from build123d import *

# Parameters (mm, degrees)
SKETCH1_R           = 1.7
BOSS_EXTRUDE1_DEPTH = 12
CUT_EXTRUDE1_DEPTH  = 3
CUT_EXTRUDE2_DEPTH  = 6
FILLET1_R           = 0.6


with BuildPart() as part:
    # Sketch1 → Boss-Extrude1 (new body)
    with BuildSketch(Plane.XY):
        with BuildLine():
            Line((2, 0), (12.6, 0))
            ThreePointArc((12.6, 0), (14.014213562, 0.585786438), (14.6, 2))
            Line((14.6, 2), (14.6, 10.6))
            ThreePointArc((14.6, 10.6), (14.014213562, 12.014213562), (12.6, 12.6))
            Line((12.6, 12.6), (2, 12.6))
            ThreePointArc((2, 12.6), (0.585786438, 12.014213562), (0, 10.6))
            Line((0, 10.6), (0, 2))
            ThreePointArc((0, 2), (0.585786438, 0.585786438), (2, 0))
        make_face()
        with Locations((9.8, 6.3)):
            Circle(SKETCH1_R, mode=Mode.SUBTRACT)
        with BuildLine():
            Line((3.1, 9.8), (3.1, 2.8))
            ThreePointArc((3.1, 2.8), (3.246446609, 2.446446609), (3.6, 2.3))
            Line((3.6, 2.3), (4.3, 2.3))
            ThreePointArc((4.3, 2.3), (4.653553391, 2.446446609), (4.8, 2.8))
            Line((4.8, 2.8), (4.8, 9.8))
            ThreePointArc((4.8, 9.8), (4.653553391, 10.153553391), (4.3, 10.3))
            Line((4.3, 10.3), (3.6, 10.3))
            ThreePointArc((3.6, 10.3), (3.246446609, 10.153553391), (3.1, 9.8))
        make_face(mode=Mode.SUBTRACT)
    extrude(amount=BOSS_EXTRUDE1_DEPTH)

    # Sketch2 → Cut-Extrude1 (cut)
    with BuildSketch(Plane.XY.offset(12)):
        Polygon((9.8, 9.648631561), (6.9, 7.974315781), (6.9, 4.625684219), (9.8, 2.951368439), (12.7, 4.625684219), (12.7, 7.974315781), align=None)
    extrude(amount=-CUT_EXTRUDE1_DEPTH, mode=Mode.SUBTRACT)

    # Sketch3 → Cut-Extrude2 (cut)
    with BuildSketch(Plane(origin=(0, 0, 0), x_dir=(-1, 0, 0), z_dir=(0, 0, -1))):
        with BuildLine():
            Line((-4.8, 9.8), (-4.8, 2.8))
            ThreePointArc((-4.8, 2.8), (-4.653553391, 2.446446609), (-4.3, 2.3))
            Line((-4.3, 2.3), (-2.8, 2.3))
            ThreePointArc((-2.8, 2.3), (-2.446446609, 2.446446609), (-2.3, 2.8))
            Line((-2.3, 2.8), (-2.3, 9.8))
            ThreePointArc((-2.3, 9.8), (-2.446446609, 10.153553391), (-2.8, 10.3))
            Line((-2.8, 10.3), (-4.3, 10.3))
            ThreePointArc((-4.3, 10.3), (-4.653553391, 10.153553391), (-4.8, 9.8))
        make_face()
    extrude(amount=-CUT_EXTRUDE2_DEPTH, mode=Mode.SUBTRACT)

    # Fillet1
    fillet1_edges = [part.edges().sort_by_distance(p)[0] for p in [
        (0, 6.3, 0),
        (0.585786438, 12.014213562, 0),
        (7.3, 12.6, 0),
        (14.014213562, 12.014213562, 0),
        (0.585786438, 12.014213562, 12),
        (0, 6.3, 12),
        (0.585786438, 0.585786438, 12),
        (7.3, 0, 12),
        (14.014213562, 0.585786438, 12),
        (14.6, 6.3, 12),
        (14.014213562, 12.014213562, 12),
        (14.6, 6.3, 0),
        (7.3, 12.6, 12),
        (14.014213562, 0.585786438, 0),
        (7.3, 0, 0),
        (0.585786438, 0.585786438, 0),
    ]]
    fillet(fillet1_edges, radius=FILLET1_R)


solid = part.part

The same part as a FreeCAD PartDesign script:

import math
import FreeCAD as App
import Part
import Sketcher
from FreeCAD import Vector
Q = App.Units.Quantity


def edges_at(feature, points):
    """Names of the edges that pass closest to the given points."""
    edges = feature.Shape.Edges
    near = lambda p: min(range(len(edges)), key=lambda i: edges[i].distToShape(Part.Vertex(*p))[0])
    return sorted({f"Edge{near(p) + 1}" for p in points})

doc = App.newDocument("Part")
body = doc.addObject("PartDesign::Body", "Body")

sketch1 = doc.addObject("Sketcher::SketchObject", "Sketch")
body.addObject(sketch1)
sketch1.AttachmentSupport = (doc.XY_Plane, [""])
sketch1.MapMode = "FlatFace"
sketch1.addGeometry(Part.LineSegment(Vector(2, 0, 0), Vector(12.6, 0, 0)), False)
sketch1.addGeometry(Part.ArcOfCircle(Part.Circle(Vector(12.6, 2, 0), Vector(0, 0, 1), 2), math.radians(-90), math.radians(0)), False)
sketch1.addGeometry(Part.LineSegment(Vector(14.6, 2, 0), Vector(14.6, 10.6, 0)), False)
sketch1.addGeometry(Part.ArcOfCircle(Part.Circle(Vector(12.6, 10.6, 0), Vector(0, 0, 1), 2), math.radians(0), math.radians(90)), False)
sketch1.addGeometry(Part.LineSegment(Vector(12.6, 12.6, 0), Vector(2, 12.6, 0)), False)
sketch1.addGeometry(Part.ArcOfCircle(Part.Circle(Vector(2, 10.6, 0), Vector(0, 0, 1), 2), math.radians(90), math.radians(180)), False)
sketch1.addGeometry(Part.LineSegment(Vector(0, 10.6, 0), Vector(0, 2, 0)), False)
sketch1.addGeometry(Part.ArcOfCircle(Part.Circle(Vector(2, 2, 0), Vector(0, 0, 1), 2), math.radians(-180), math.radians(-90)), False)
sketch1.addGeometry(Part.LineSegment(Vector(3.1, 2.8, 0), Vector(3.1, 9.8, 0)), False)
sketch1.addGeometry(Part.ArcOfCircle(Part.Circle(Vector(3.6, 9.8, 0), Vector(0, 0, 1), 0.5), math.radians(90), math.radians(180)), False)
sketch1.addGeometry(Part.LineSegment(Vector(3.6, 10.3, 0), Vector(4.3, 10.3, 0)), False)
sketch1.addGeometry(Part.ArcOfCircle(Part.Circle(Vector(4.3, 9.8, 0), Vector(0, 0, 1), 0.5), math.radians(0), math.radians(90)), False)
sketch1.addGeometry(Part.LineSegment(Vector(4.8, 9.8, 0), Vector(4.8, 2.8, 0)), False)
sketch1.addGeometry(Part.ArcOfCircle(Part.Circle(Vector(4.3, 2.8, 0), Vector(0, 0, 1), 0.5), math.radians(-90), math.radians(0)), False)
sketch1.addGeometry(Part.LineSegment(Vector(4.3, 2.3, 0), Vector(3.6, 2.3, 0)), False)
sketch1.addGeometry(Part.ArcOfCircle(Part.Circle(Vector(3.6, 2.8, 0), Vector(0, 0, 1), 0.5), math.radians(180), math.radians(270)), False)
sketch1.addGeometry(Part.Circle(Vector(9.8, 6.3, 0), Vector(0, 0, 1), 1.7), False)
sketch1.addConstraint(Sketcher.Constraint("Tangent", 0, 2, 1, 1))
sketch1.addConstraint(Sketcher.Constraint("Tangent", 1, 2, 2, 1))
sketch1.addConstraint(Sketcher.Constraint("Tangent", 2, 2, 3, 1))
sketch1.addConstraint(Sketcher.Constraint("Tangent", 3, 2, 4, 1))
sketch1.addConstraint(Sketcher.Constraint("Tangent", 4, 2, 5, 1))
sketch1.addConstraint(Sketcher.Constraint("Tangent", 5, 2, 6, 1))
sketch1.addConstraint(Sketcher.Constraint("Tangent", 6, 2, 7, 1))
sketch1.addConstraint(Sketcher.Constraint("Tangent", 7, 2, 0, 1))
sketch1.addConstraint(Sketcher.Constraint("Tangent", 8, 2, 9, 2))
sketch1.addConstraint(Sketcher.Constraint("Tangent", 9, 1, 10, 1))
sketch1.addConstraint(Sketcher.Constraint("Tangent", 10, 2, 11, 2))
sketch1.addConstraint(Sketcher.Constraint("Tangent", 11, 1, 12, 1))
sketch1.addConstraint(Sketcher.Constraint("Tangent", 12, 2, 13, 2))
sketch1.addConstraint(Sketcher.Constraint("Tangent", 13, 1, 14, 1))
sketch1.addConstraint(Sketcher.Constraint("Tangent", 14, 2, 15, 2))
sketch1.addConstraint(Sketcher.Constraint("Tangent", 15, 1, 8, 1))
sketch1.addConstraint(Sketcher.Constraint("Horizontal", 0))
sketch1.addConstraint(Sketcher.Constraint("Vertical", 2))
sketch1.addConstraint(Sketcher.Constraint("Horizontal", 4))
sketch1.addConstraint(Sketcher.Constraint("Vertical", 6))
sketch1.addConstraint(Sketcher.Constraint("Vertical", 8))
sketch1.addConstraint(Sketcher.Constraint("Horizontal", 10))
sketch1.addConstraint(Sketcher.Constraint("Vertical", 12))
sketch1.addConstraint(Sketcher.Constraint("Horizontal", 14))
sketch1.addConstraint(Sketcher.Constraint("Equal", 1, 3))
sketch1.addConstraint(Sketcher.Constraint("Equal", 3, 5))
sketch1.addConstraint(Sketcher.Constraint("Equal", 5, 7))
sketch1.addConstraint(Sketcher.Constraint("Equal", 9, 11))
sketch1.addConstraint(Sketcher.Constraint("Equal", 11, 13))
sketch1.addConstraint(Sketcher.Constraint("Equal", 13, 15))
sketch1.addConstraint(Sketcher.Constraint("PointOnObject", 0, 2, -1))
sketch1.addConstraint(Sketcher.Constraint("PointOnObject", 5, 2, -2))
sketch1.addConstraint(Sketcher.Constraint("Radius", 1, Q("2 mm")))
sketch1.addConstraint(Sketcher.Constraint("Diameter", 16, Q("3.4 mm")))
sketch1.addConstraint(Sketcher.Constraint("Radius", 9, Q("0.5 mm")))
sketch1.addConstraint(Sketcher.Constraint("DistanceY", 8, 1, 8, 2, Q("7 mm")))
sketch1.addConstraint(Sketcher.Constraint("DistanceX", 0, 1, 0, 2, Q("10.6 mm")))
sketch1.addConstraint(Sketcher.Constraint("DistanceX", 10, 1, 10, 2, Q("0.7 mm")))
sketch1.addConstraint(Sketcher.Constraint("DistanceY", 2, 1, 2, 2, Q("8.6 mm")))
sketch1.addConstraint(Sketcher.Constraint("DistanceX", 9, 3, 3, 3, Q("9 mm")))
sketch1.addConstraint(Sketcher.Constraint("DistanceY", -1, 1, 9, 3, Q("9.8 mm")))
sketch1.addConstraint(Sketcher.Constraint("DistanceX", -1, 1, 16, 3, Q("9.8 mm")))
sketch1.addConstraint(Sketcher.Constraint("DistanceY", -1, 1, 16, 3, Q("6.3 mm")))
pad1 = doc.addObject("PartDesign::Pad", "Pad")
body.addObject(pad1)
pad1.Profile = sketch1
pad1.Length = 12

sketch2 = doc.addObject("Sketcher::SketchObject", "Sketch001")
body.addObject(sketch2)
sketch2.AttachmentSupport = (doc.XY_Plane, [""])
sketch2.MapMode = "FlatFace"
sketch2.AttachmentOffset = App.Placement(Vector(0, 0, 12), App.Rotation())
sketch2.addGeometry(Part.LineSegment(Vector(9.8, 9.648632, 0), Vector(6.9, 7.974316, 0)), False)
sketch2.addGeometry(Part.LineSegment(Vector(6.9, 7.974316, 0), Vector(6.9, 4.625684, 0)), False)
sketch2.addGeometry(Part.LineSegment(Vector(6.9, 4.625684, 0), Vector(9.8, 2.951368, 0)), False)
sketch2.addGeometry(Part.LineSegment(Vector(9.8, 2.951368, 0), Vector(12.7, 4.625684, 0)), False)
sketch2.addGeometry(Part.LineSegment(Vector(12.7, 4.625684, 0), Vector(12.7, 7.974316, 0)), False)
sketch2.addGeometry(Part.LineSegment(Vector(12.7, 7.974316, 0), Vector(9.8, 9.648632, 0)), False)
sketch2.addConstraint(Sketcher.Constraint("Coincident", 0, 2, 1, 1))
sketch2.addConstraint(Sketcher.Constraint("Coincident", 1, 2, 2, 1))
sketch2.addConstraint(Sketcher.Constraint("Coincident", 2, 2, 3, 1))
sketch2.addConstraint(Sketcher.Constraint("Coincident", 3, 2, 4, 1))
sketch2.addConstraint(Sketcher.Constraint("Coincident", 4, 2, 5, 1))
sketch2.addConstraint(Sketcher.Constraint("Coincident", 5, 2, 0, 1))
sketch2.addConstraint(Sketcher.Constraint("Vertical", 1))
sketch2.addConstraint(Sketcher.Constraint("Vertical", 4))
sketch2.addConstraint(Sketcher.Constraint("Parallel", 0, 3))
sketch2.addConstraint(Sketcher.Constraint("Parallel", 2, 5))
sketch2.addConstraint(Sketcher.Constraint("Horizontal", 1, 2, 3, 2))
sketch2.addConstraint(Sketcher.Constraint("Horizontal", 0, 2, 4, 2))
sketch2.addConstraint(Sketcher.Constraint("Vertical", 2, 2, 5, 2))
sketch2.addConstraint(Sketcher.Constraint("Angle", 0, Q("-150 deg")))
sketch2.addConstraint(Sketcher.Constraint("DistanceX", -1, 1, 0, 2, Q("6.9 mm")))
sketch2.addConstraint(Sketcher.Constraint("DistanceX", -1, 1, 2, 2, Q("9.8 mm")))
sketch2.addConstraint(Sketcher.Constraint("DistanceY", 1, 2, 1, 1, Q("3.348632 mm")))
sketch2.addConstraint(Sketcher.Constraint("DistanceY", -1, 1, 2, 2, Q("2.951368 mm")))
pocket1 = doc.addObject("PartDesign::Pocket", "Pocket")
body.addObject(pocket1)
pocket1.Profile = sketch2
pocket1.Length = 3

sketch3 = doc.addObject("Sketcher::SketchObject", "Sketch002")
body.addObject(sketch3)
sketch3.AttachmentSupport = (doc.XY_Plane, [""])
sketch3.MapMode = "FlatFace"
sketch3.addGeometry(Part.LineSegment(Vector(4.8, 9.8, 0), Vector(4.8, 2.8, 0)), False)
sketch3.addGeometry(Part.ArcOfCircle(Part.Circle(Vector(4.3, 2.8, 0), Vector(0, 0, 1), 0.5), math.radians(-90), math.radians(0)), False)
sketch3.addGeometry(Part.LineSegment(Vector(4.3, 2.3, 0), Vector(2.8, 2.3, 0)), False)
sketch3.addGeometry(Part.ArcOfCircle(Part.Circle(Vector(2.8, 2.8, 0), Vector(0, 0, 1), 0.5), math.radians(180), math.radians(270)), False)
sketch3.addGeometry(Part.LineSegment(Vector(2.3, 2.8, 0), Vector(2.3, 9.8, 0)), False)
sketch3.addGeometry(Part.ArcOfCircle(Part.Circle(Vector(2.8, 9.8, 0), Vector(0, 0, 1), 0.5), math.radians(90), math.radians(180)), False)
sketch3.addGeometry(Part.LineSegment(Vector(2.8, 10.3, 0), Vector(4.3, 10.3, 0)), False)
sketch3.addGeometry(Part.ArcOfCircle(Part.Circle(Vector(4.3, 9.8, 0), Vector(0, 0, 1), 0.5), math.radians(0), math.radians(90)), False)
sketch3.addConstraint(Sketcher.Constraint("Tangent", 0, 2, 1, 2))
sketch3.addConstraint(Sketcher.Constraint("Tangent", 1, 1, 2, 1))
sketch3.addConstraint(Sketcher.Constraint("Tangent", 2, 2, 3, 2))
sketch3.addConstraint(Sketcher.Constraint("Tangent", 3, 1, 4, 1))
sketch3.addConstraint(Sketcher.Constraint("Tangent", 4, 2, 5, 2))
sketch3.addConstraint(Sketcher.Constraint("Tangent", 5, 1, 6, 1))
sketch3.addConstraint(Sketcher.Constraint("Tangent", 6, 2, 7, 2))
sketch3.addConstraint(Sketcher.Constraint("Tangent", 7, 1, 0, 1))
sketch3.addConstraint(Sketcher.Constraint("Vertical", 0))
sketch3.addConstraint(Sketcher.Constraint("Horizontal", 2))
sketch3.addConstraint(Sketcher.Constraint("Vertical", 4))
sketch3.addConstraint(Sketcher.Constraint("Horizontal", 6))
sketch3.addConstraint(Sketcher.Constraint("Equal", 1, 3))
sketch3.addConstraint(Sketcher.Constraint("Equal", 3, 5))
sketch3.addConstraint(Sketcher.Constraint("Equal", 5, 7))
sketch3.addConstraint(Sketcher.Constraint("Radius", 1, Q("0.5 mm")))
sketch3.addConstraint(Sketcher.Constraint("DistanceY", 0, 2, 0, 1, Q("7 mm")))
sketch3.addConstraint(Sketcher.Constraint("DistanceX", 2, 2, 2, 1, Q("1.5 mm")))
sketch3.addConstraint(Sketcher.Constraint("DistanceX", -1, 1, 1, 3, Q("4.3 mm")))
sketch3.addConstraint(Sketcher.Constraint("DistanceY", -1, 1, 1, 3, Q("2.8 mm")))
pocket2 = doc.addObject("PartDesign::Pocket", "Pocket001")
body.addObject(pocket2)
pocket2.Profile = sketch3
pocket2.Length = 6
pocket2.Reversed = True
doc.recompute()

fillet = doc.addObject("PartDesign::Fillet", "Fillet")
body.addObject(fillet)
fillet.Base = (pocket2, edges_at(pocket2, [
    (0, 6.3, 0),
    (0.586, 12.014, 0),
    (7.3, 12.6, 0),
    (14.014, 12.014, 0),
    (0.586, 12.014, 12),
    (0, 6.3, 12),
    (0.586, 0.586, 12),
    (7.3, 0, 12),
    (14.014, 0.586, 12),
    (14.6, 6.3, 12),
    (14.014, 12.014, 12),
    (14.6, 6.3, 0),
    (7.3, 12.6, 12),
    (14.014, 0.586, 0),
    (7.3, 0, 0),
    (0.586, 0.586, 0),
]))
fillet.Radius = 0.6

doc.recompute()
